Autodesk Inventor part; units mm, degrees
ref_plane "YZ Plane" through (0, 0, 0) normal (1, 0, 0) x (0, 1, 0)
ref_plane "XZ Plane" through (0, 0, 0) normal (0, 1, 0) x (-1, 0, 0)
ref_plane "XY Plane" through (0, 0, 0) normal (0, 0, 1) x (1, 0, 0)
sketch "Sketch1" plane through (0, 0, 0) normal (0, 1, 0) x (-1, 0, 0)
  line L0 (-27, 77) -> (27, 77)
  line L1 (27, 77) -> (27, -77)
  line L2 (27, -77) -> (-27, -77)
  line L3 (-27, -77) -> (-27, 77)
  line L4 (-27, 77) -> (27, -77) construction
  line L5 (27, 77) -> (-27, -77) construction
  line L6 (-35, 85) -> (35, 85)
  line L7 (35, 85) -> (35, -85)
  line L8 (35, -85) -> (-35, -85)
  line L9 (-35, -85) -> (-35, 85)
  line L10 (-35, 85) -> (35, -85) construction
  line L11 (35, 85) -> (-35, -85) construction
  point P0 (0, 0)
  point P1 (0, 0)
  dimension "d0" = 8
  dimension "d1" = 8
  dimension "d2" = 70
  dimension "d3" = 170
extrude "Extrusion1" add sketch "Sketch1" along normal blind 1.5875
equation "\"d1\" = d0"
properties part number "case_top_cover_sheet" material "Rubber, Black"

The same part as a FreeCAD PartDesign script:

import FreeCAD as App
import Part
import Sketcher
from FreeCAD import Vector
Q = App.Units.Quantity


def add_polygon(sketch, points):
    """Adds a closed chain of lines whose ends are joined by coincident constraints."""
    first, n = sketch.GeometryCount, len(points)
    for a, b in zip(points, points[1:] + points[:1]):
        sketch.addGeometry(Part.LineSegment(App.Vector(*a, 0), App.Vector(*b, 0)), False)
    for i in range(n):
        sketch.addConstraint(Sketcher.Constraint("Coincident", first + i, 2, first + (i + 1) % n, 1))

doc = App.newDocument("Part")
body = doc.addObject("PartDesign::Body", "Body")

sketch1 = body.newObject("Sketcher::SketchObject", "Sketch")
sketch1.AttachmentSupport = (doc.getObject("XZ_Plane"), [""])
sketch1.MapMode = "FlatFace"
add_polygon(sketch1, [(-35, 85), (35, 85), (35, -85), (-35, -85)])
add_polygon(sketch1, [(27, -77), (27, 77), (-27, 77), (-27, -77)])
sketch1.addConstraint(Sketcher.Constraint("Horizontal", 0))
sketch1.addConstraint(Sketcher.Constraint("Vertical", 1))
sketch1.addConstraint(Sketcher.Constraint("Horizontal", 2))
sketch1.addConstraint(Sketcher.Constraint("Vertical", 3))
sketch1.addConstraint(Sketcher.Constraint("Vertical", 4))
sketch1.addConstraint(Sketcher.Constraint("Horizontal", 5))
sketch1.addConstraint(Sketcher.Constraint("Vertical", 6))
sketch1.addConstraint(Sketcher.Constraint("Horizontal", 7))
sketch1.addConstraint(Sketcher.Constraint("Symmetric", 0, 2, 2, 2, -1, 1))
sketch1.addConstraint(Sketcher.Constraint("Symmetric", 4, 2, 6, 2, -1, 1))
sketch1.addConstraint(Sketcher.Constraint("DistanceX", 0, 1, 0, 2, Q("70 mm")))
sketch1.addConstraint(Sketcher.Constraint("DistanceY", 1, 2, 1, 1, Q("170 mm")))
sketch1.addConstraint(Sketcher.Constraint("DistanceX", 4, 2, 0, 2, Q("8 mm")))
sketch1.addConstraint(Sketcher.Constraint("DistanceY", 4, 2, 0, 2, Q("8 mm")))
pad1 = body.newObject("PartDesign::Pad", "Pad")
pad1.Profile = sketch1
pad1.Length = 1.5875
pad1.Reversed = True

doc.recompute()
